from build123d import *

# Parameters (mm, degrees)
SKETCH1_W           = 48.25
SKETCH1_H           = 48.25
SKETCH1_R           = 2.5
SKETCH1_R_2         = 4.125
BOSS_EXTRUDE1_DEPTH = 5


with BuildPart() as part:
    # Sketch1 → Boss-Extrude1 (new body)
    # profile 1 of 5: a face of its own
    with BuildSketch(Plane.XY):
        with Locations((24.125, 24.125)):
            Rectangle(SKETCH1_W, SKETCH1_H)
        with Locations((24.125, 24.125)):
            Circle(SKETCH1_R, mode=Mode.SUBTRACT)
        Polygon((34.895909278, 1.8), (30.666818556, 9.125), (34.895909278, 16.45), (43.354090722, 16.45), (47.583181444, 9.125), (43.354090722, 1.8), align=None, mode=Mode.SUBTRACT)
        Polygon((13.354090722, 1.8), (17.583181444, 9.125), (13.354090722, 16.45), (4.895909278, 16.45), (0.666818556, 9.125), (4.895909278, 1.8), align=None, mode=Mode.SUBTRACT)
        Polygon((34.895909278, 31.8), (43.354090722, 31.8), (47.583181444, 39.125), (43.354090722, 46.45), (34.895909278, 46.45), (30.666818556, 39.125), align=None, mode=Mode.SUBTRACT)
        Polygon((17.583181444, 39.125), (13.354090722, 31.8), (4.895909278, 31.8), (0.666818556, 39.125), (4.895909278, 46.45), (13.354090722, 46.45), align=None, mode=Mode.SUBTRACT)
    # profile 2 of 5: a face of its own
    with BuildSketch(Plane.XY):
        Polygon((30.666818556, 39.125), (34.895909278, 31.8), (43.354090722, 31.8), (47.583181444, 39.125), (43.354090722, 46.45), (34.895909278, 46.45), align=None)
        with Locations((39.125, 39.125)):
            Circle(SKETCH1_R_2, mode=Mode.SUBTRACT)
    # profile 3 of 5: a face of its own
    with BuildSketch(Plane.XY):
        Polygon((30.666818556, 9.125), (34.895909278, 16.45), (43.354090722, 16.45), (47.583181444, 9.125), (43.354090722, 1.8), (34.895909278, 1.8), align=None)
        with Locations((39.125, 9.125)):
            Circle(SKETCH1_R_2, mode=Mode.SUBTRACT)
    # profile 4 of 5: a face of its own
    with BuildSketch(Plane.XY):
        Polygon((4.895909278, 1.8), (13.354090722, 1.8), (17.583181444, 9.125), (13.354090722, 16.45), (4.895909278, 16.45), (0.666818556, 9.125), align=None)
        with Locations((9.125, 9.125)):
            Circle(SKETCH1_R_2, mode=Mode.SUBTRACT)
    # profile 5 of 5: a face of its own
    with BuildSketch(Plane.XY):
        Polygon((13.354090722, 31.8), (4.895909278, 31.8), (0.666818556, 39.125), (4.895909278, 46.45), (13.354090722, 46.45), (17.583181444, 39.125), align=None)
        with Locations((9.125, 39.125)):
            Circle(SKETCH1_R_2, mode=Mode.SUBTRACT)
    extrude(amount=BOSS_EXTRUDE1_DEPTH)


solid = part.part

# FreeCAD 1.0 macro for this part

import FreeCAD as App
import Part
import Sketcher
from FreeCAD import Vector
Q = App.Units.Quantity


def add_polygon(sketch, points):
    """Adds a closed chain of lines whose ends are joined by coincident constraints."""
    first, n = sketch.GeometryCount, len(points)
    for a, b in zip(points, points[1:] + points[:1]):
        sketch.addGeometry(Part.LineSegment(App.Vector(*a, 0), App.Vector(*b, 0)), False)
    for i in range(n):
        sketch.addConstraint(Sketcher.Constraint("Coincident", first + i, 2, first + (i + 1) % n, 1))

doc = App.newDocument("Part")
body = doc.addObject("PartDesign::Body", "Body")

# Sketch on XY plane
sketch1 = body.newObject("Sketcher::SketchObject", "Sketch")
sketch1.AttachmentSupport = (doc.getObject("XY_Plane"), [""])
sketch1.MapMode = "FlatFace"
add_polygon(sketch1, [(0, 48.25), (0, 0), (48.25, 0), (48.25, 48.25)])  # lines 0-3
sketch1.addGeometry(Part.Circle(Vector(24.125, 24.125, 0), Vector(0, 0, 1), 2.5), False)  # 4
sketch1.addGeometry(Part.Circle(Vector(9.125, 9.125, 0), Vector(0, 0, 1), 4.125), False)  # 5
sketch1.addGeometry(Part.Circle(Vector(39.125, 9.125, 0), Vector(0, 0, 1), 4.125), False)  # 6
sketch1.addGeometry(Part.Circle(Vector(9.125, 39.125, 0), Vector(0, 0, 1), 4.125), False)  # 7
sketch1.addGeometry(Part.Circle(Vector(39.125, 39.125, 0), Vector(0, 0, 1), 4.125), False)  # 8
sketch1.addConstraint([
    Sketcher.Constraint("Vertical", 0),
    Sketcher.Constraint("Horizontal", 1),
    Sketcher.Constraint("Vertical", 2),
    Sketcher.Constraint("Horizontal", 3),
    Sketcher.Constraint("Coincident", 0, 2, -1, 1),
    Sketcher.Constraint("Equal", 5, 6),
    Sketcher.Constraint("Equal", 6, 7),
    Sketcher.Constraint("Equal", 7, 8),
    Sketcher.Constraint("Horizontal", 5, 3, 6, 3),
    Sketcher.Constraint("Horizontal", 7, 3, 8, 3),
    Sketcher.Constraint("Vertical", 5, 3, 7, 3),
    Sketcher.Constraint("Vertical", 6, 3, 8, 3),
    Sketcher.Constraint("Equal", 3, 0),
    Sketcher.Constraint("Diameter", 4, Q("5 mm")),
    Sketcher.Constraint("Diameter", 5, Q("8.25 mm")),
    Sketcher.Constraint("DistanceX", 5, 3, 4, 3, Q("15 mm")),
    Sketcher.Constraint("DistanceY", 5, 3, 4, 3, Q("15 mm")),
    Sketcher.Constraint("DistanceX", 4, 3, 6, 3, Q("15 mm")),
    Sketcher.Constraint("DistanceY", 4, 3, 7, 3, Q("15 mm")),
    Sketcher.Constraint("DistanceX", 1, 1, 1, 2, Q("48.25 mm")),
    Sketcher.Constraint("DistanceX", -1, 1, 4, 3, Q("24.125 mm")),
    Sketcher.Constraint("DistanceY", -1, 1, 4, 3, Q("24.125 mm")),
])
pad1 = body.newObject("PartDesign::Pad", "Pad")
pad1.Profile = sketch1
pad1.Length = 5

doc.recompute()
